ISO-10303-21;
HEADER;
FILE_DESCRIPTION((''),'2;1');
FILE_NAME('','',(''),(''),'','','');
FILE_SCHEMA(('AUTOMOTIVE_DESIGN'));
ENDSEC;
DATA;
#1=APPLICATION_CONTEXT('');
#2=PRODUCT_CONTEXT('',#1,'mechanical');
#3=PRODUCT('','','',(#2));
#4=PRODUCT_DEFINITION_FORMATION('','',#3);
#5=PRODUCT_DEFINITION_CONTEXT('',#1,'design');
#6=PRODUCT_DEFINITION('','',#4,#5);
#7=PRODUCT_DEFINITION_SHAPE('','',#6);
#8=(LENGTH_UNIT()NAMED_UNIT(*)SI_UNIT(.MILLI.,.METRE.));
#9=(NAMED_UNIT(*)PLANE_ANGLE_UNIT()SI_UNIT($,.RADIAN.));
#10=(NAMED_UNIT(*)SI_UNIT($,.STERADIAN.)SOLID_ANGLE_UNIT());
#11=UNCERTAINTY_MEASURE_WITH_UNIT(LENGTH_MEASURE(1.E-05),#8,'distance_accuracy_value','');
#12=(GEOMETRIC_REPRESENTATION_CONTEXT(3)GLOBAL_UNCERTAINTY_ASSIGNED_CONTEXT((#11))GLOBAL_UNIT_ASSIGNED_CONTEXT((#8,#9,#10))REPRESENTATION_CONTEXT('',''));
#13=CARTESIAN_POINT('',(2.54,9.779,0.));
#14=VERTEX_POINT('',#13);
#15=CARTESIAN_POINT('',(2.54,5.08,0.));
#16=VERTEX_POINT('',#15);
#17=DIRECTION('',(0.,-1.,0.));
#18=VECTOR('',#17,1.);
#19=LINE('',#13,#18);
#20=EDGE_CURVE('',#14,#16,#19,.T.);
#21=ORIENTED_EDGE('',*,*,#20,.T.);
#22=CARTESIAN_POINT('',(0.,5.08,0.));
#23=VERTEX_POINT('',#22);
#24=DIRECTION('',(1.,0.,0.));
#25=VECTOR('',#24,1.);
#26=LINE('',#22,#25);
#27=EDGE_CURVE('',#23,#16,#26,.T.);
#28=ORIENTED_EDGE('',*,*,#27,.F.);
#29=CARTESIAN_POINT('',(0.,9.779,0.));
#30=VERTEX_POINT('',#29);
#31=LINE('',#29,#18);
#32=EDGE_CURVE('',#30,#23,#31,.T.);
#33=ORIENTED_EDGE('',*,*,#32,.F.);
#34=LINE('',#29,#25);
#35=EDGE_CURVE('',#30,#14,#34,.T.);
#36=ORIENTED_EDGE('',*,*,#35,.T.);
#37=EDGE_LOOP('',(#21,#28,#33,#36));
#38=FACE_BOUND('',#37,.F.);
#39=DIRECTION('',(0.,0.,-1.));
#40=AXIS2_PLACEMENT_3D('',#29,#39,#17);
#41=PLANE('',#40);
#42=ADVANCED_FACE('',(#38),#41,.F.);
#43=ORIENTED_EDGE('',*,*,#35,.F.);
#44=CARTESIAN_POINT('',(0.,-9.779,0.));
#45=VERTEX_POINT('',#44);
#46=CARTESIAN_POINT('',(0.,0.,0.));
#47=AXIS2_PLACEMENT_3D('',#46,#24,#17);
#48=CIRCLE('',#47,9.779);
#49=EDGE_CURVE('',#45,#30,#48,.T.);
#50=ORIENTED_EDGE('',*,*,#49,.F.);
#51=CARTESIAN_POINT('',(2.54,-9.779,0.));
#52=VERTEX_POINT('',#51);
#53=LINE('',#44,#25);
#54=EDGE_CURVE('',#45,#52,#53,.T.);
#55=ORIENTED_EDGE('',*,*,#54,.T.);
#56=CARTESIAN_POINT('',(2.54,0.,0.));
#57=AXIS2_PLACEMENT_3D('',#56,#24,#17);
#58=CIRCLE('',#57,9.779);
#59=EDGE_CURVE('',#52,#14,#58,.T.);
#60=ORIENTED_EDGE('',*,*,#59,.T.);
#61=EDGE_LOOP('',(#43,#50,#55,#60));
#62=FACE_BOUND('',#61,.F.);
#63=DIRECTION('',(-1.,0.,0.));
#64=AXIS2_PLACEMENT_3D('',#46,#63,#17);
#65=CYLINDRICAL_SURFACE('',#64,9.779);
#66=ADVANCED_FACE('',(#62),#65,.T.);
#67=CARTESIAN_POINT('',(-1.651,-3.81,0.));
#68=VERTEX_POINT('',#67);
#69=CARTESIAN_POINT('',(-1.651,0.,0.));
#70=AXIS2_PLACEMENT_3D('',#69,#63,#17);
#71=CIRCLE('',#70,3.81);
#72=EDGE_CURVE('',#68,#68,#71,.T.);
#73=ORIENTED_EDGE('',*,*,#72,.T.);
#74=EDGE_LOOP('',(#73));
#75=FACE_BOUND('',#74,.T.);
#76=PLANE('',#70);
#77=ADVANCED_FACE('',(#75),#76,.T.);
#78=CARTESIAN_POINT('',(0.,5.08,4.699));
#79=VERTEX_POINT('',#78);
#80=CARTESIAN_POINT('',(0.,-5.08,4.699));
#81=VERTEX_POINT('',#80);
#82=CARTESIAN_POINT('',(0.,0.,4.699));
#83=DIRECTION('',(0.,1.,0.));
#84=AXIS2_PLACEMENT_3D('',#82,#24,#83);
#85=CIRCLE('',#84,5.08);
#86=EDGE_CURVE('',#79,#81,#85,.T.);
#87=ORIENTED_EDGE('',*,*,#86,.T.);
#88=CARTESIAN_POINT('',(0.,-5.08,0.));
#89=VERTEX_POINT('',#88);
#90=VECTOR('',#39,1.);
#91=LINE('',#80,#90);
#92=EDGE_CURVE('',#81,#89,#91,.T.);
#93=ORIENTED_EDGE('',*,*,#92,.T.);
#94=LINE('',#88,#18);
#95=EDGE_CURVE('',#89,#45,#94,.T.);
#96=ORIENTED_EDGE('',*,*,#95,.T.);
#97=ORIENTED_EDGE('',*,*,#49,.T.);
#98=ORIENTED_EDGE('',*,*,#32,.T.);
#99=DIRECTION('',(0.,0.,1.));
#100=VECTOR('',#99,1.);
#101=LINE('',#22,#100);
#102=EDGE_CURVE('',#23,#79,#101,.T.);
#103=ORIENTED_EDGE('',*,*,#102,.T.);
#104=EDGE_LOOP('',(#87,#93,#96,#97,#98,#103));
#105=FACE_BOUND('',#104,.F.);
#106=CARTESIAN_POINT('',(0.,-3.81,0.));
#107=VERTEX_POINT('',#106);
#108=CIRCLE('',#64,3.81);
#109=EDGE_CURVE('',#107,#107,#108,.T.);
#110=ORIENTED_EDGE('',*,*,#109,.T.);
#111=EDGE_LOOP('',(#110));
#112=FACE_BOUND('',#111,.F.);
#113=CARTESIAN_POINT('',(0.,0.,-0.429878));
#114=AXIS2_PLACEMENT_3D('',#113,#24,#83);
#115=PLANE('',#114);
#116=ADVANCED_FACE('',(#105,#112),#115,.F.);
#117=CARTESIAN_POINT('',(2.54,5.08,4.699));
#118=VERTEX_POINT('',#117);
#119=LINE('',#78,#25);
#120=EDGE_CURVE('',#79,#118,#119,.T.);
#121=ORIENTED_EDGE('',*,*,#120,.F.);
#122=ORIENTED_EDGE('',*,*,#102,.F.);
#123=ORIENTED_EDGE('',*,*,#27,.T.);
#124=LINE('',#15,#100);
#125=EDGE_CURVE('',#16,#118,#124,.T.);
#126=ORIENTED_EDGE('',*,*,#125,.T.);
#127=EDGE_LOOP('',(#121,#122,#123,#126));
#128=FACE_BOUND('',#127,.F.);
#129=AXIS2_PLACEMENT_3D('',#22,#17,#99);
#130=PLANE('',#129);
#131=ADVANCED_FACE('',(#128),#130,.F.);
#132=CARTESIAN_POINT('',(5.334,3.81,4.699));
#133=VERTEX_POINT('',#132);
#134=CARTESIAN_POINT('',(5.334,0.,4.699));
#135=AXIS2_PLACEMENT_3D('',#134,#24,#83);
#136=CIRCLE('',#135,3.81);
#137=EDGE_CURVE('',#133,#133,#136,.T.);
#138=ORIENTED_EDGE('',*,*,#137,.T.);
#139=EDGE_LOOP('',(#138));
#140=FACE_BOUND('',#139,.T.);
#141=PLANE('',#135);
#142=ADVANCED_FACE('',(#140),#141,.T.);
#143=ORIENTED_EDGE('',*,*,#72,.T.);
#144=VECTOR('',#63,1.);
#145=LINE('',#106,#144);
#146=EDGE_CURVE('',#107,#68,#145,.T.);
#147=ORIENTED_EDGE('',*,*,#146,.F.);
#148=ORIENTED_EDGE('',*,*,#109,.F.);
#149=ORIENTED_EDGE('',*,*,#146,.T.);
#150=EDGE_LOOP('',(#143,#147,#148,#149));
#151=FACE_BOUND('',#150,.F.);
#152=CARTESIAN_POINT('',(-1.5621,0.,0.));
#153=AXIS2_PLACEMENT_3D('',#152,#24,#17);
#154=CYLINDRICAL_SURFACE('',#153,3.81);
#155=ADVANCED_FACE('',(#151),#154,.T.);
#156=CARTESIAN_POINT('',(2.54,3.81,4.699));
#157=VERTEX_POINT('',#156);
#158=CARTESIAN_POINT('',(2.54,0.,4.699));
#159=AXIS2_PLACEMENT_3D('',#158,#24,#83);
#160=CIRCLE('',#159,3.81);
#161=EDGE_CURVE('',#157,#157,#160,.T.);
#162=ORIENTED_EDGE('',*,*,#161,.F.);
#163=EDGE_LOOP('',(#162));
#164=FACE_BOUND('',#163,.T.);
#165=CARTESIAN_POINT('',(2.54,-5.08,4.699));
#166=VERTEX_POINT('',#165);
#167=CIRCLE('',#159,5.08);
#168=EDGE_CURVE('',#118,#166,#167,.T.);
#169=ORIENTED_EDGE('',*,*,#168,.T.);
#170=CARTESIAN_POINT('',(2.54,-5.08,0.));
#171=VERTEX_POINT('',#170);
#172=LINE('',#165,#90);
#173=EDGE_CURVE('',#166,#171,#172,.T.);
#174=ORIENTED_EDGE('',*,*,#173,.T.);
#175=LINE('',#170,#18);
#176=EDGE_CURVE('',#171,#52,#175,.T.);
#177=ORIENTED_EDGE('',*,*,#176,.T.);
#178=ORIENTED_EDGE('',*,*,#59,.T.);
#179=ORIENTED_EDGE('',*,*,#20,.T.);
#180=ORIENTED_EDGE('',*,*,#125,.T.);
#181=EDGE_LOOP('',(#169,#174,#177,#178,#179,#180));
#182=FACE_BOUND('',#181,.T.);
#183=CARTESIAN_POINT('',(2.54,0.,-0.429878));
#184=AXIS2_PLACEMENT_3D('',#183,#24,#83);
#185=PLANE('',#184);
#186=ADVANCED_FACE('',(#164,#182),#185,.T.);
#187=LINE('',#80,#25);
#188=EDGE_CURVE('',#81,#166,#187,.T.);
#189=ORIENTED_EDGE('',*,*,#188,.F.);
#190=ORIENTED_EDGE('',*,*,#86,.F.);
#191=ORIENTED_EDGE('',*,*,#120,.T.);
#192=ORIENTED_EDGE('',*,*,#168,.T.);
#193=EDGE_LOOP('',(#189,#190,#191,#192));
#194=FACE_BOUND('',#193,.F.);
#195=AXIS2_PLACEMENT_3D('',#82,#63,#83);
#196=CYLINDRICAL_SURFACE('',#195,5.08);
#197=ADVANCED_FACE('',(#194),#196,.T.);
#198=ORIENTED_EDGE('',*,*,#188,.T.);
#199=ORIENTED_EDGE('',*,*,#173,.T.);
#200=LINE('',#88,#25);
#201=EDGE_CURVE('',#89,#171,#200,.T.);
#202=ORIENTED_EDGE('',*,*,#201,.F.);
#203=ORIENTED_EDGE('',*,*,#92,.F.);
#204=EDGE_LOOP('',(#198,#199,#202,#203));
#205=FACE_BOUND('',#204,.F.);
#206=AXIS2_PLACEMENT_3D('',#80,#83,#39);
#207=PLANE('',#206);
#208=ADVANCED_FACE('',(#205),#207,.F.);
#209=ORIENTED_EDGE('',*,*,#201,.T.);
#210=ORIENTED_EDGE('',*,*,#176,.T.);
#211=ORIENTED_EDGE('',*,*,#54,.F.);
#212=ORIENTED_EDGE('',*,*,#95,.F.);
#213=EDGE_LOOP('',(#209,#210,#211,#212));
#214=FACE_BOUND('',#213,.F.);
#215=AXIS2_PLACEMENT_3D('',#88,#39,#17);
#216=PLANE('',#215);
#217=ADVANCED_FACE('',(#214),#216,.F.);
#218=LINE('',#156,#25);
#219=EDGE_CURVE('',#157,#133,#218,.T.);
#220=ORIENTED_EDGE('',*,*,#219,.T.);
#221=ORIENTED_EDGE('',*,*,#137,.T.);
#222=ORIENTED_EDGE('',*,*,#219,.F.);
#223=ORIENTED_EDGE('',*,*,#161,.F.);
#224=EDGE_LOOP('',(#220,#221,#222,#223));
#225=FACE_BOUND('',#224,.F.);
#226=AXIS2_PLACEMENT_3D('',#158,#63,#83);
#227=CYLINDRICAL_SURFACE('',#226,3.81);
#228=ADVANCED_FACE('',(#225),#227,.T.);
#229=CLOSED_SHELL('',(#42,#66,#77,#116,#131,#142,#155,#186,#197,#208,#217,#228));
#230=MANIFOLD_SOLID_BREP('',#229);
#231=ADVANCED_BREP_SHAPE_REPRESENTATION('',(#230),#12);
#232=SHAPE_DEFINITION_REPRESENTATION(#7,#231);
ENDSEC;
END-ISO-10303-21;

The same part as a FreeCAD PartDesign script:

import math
import FreeCAD as App
import Part
import Sketcher

V = App.Vector
Q = App.Units.Quantity

doc = App.newDocument("Part")
body = doc.addObject("PartDesign::Body", "Body")

# Sketch on YZ plane
sketch1 = doc.addObject("Sketcher::SketchObject", "Sketch")
body.addObject(sketch1)
sketch1.AttachmentSupport = (doc.YZ_Plane, [""])
sketch1.MapMode = "FlatFace"
sketch1.addGeometry(Part.LineSegment(V(5.1, 0, 0), V(5.1, 4.7, 0)), False)
sketch1.addGeometry(Part.ArcOfCircle(Part.Circle(V(0, 4.7, 0), V(0, 0, 1), 5.1), math.radians(0), math.radians(180)), False)
sketch1.addGeometry(Part.LineSegment(V(-5.1, 4.7, 0), V(-5.1, 0, 0)), False)
sketch1.addGeometry(Part.LineSegment(V(-5.1, 0, 0), V(-9.8, 0, 0)), False)
sketch1.addGeometry(Part.ArcOfCircle(Part.Circle(V(0, 0, 0), V(0, 0, 1), 9.8), math.radians(180), math.radians(360)), False)
sketch1.addGeometry(Part.LineSegment(V(9.8, 0, 0), V(5.1, 0, 0)), False)
sketch1.addConstraint(Sketcher.Constraint("Tangent", 0, 2, 1, 1))
sketch1.addConstraint(Sketcher.Constraint("Tangent", 1, 2, 2, 1))
sketch1.addConstraint(Sketcher.Constraint("Coincident", 2, 2, 3, 1))
sketch1.addConstraint(Sketcher.Constraint("Coincident", 3, 2, 4, 1))
sketch1.addConstraint(Sketcher.Constraint("Coincident", 4, 2, 5, 1))
sketch1.addConstraint(Sketcher.Constraint("Coincident", 5, 2, 0, 1))
sketch1.addConstraint(Sketcher.Constraint("Vertical", 0))
sketch1.addConstraint(Sketcher.Constraint("Vertical", 2))
sketch1.addConstraint(Sketcher.Constraint("Horizontal", 3))
sketch1.addConstraint(Sketcher.Constraint("Horizontal", 5))
sketch1.addConstraint(Sketcher.Constraint("Coincident", 4, 3, -1, 1))
sketch1.addConstraint(Sketcher.Constraint("Symmetric", 2, 2, 5, 2, -1, 1))
sketch1.addConstraint(Sketcher.Constraint("PointOnObject", 2, 2, -1))
sketch1.addConstraint(Sketcher.Constraint("Equal", 5, 0))
sketch1.addConstraint(Sketcher.Constraint("Radius", 1, Q("0.2 in")))
sketch1.addConstraint(Sketcher.Constraint("Radius", 4, Q("0.385 in")))
pad1 = doc.addObject("PartDesign::Pad", "Pad")
body.addObject(pad1)
pad1.Profile = sketch1
pad1.Length = Q("0.1 in")

# Sketch on YZ plane
sketch2 = doc.addObject("Sketcher::SketchObject", "Sketch001")
body.addObject(sketch2)
sketch2.AttachmentSupport = (doc.YZ_Plane, [""])
sketch2.MapMode = "FlatFace"
sketch2.AttachmentOffset = App.Placement(V(0, 0, 0.1 * 25.4), App.Rotation())
sketch2.addGeometry(Part.Circle(V(0, 4.7, 0), V(0, 0, 1), 3.8), False)
sketch2.addConstraint(Sketcher.Constraint("PointOnObject", 0, 3, -2))
sketch2.addConstraint(Sketcher.Constraint("Diameter", 0, Q("0.3 in")))
sketch2.addConstraint(Sketcher.Constraint("DistanceY", -1, 1, 0, 3, Q("0.185 in")))
pad2 = doc.addObject("PartDesign::Pad", "Pad001")
body.addObject(pad2)
pad2.Profile = sketch2
pad2.Length = Q("0.11 in")

# Sketch on YZ plane
sketch3 = doc.addObject("Sketcher::SketchObject", "Sketch002")
body.addObject(sketch3)
sketch3.AttachmentSupport = (doc.YZ_Plane, [""])
sketch3.MapMode = "FlatFace"
sketch3.addGeometry(Part.Circle(V(0, 0, 0), V(0, 0, 1), 3.8), False)
sketch3.addConstraint(Sketcher.Constraint("Coincident", 0, 3, -1, 1))
sketch3.addConstraint(Sketcher.Constraint("Diameter", 0, Q("0.3 in")))
pad3 = doc.addObject("PartDesign::Pad", "Pad002")
body.addObject(pad3)
pad3.Profile = sketch3
pad3.Length = Q("0.0615 in")
pad3.Reversed = True

# Sketch on YZ plane
sketch4 = doc.addObject("Sketcher::SketchObject", "Sketch003")
body.addObject(sketch4)
sketch4.AttachmentSupport = (doc.YZ_Plane, [""])
sketch4.MapMode = "FlatFace"
sketch4.AttachmentOffset = App.Placement(V(0, 0, -0.0615 * 25.4), App.Rotation())
sketch4.addGeometry(Part.Circle(V(0, 0, 0), V(0, 0, 1), 3.8), False)
sketch4.addConstraint(Sketcher.Constraint("Coincident", 0, 3, -1, 1))
sketch4.addConstraint(Sketcher.Constraint("Diameter", 0, Q("0.3 in")))
pad4 = doc.addObject("PartDesign::Pad", "Pad003")
body.addObject(pad4)
pad4.Profile = sketch4
pad4.Length = Q("0.0035 in")
pad4.Reversed = True

doc.recompute()
